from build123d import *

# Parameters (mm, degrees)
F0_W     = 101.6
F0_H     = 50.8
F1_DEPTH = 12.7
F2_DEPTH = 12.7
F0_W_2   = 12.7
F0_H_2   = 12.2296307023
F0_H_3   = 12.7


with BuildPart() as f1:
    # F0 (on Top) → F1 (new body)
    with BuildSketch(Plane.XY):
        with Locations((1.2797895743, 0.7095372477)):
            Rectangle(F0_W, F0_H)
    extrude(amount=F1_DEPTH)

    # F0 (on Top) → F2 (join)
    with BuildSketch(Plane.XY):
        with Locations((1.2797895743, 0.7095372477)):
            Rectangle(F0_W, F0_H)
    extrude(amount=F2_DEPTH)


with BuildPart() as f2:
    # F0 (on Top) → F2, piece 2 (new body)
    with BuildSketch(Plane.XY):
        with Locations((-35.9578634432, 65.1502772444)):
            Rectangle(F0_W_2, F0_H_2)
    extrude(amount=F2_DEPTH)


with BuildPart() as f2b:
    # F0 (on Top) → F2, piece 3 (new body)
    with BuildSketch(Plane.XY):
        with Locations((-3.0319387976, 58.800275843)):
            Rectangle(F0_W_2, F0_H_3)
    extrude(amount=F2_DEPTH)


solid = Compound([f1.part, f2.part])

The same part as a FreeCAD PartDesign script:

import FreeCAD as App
import Part
import Sketcher
from FreeCAD import Vector
Q = App.Units.Quantity

doc = App.newDocument("Part")
body = doc.addObject("PartDesign::Body", "Body")

sketch1 = body.newObject("Sketcher::SketchObject", "Sketch")
sketch1.AttachmentSupport = (doc.getObject("XY_Plane"), [""])
sketch1.MapMode = "FlatFace"
sketch1.addGeometry([
    Part.LineSegment(Vector(-50, 26, 0), Vector(-50, -25, 0)),
    Part.LineSegment(Vector(-50, -25, 0), Vector(52, -25, 0)),
    Part.LineSegment(Vector(52, -25, 0), Vector(52, 26, 0)),
    Part.LineSegment(Vector(52, 26, 0), Vector(-50, 26, 0)),
], False)
sketch1.addConstraint([
    Sketcher.Constraint("Coincident", 0, 2, 1, 1),
    Sketcher.Constraint("Coincident", 1, 2, 2, 1),
    Sketcher.Constraint("Coincident", 2, 2, 3, 1),
    Sketcher.Constraint("Coincident", 3, 2, 0, 1),
    Sketcher.Constraint("Vertical", 0),
    Sketcher.Constraint("Horizontal", 1),
    Sketcher.Constraint("Vertical", 2),
    Sketcher.Constraint("Horizontal", 3),
    Sketcher.Constraint("DistanceX", 1, 1, 1, 2, Q("4 in")),
    Sketcher.Constraint("DistanceY", 0, 2, 0, 1, Q("2 in")),
    Sketcher.Constraint("DistanceX", 0, 2, -1, 1, Q("49.52021 mm")),
    Sketcher.Constraint("DistanceY", 0, 2, -1, 1, Q("24.690463 mm")),
])
pad1 = body.newObject("PartDesign::Pad", "Pad")
pad1.Profile = sketch1
pad1.Length = Q("0.5 in")

sketch2 = body.newObject("Sketcher::SketchObject", "Sketch001")
sketch2.AttachmentSupport = (doc.getObject("XY_Plane"), [""])
sketch2.MapMode = "FlatFace"
sketch2.addGeometry([
    Part.LineSegment(Vector(-50, 26, 0), Vector(-50, -25, 0)),
    Part.LineSegment(Vector(-50, -25, 0), Vector(52, -25, 0)),
    Part.LineSegment(Vector(52, -25, 0), Vector(52, 26, 0)),
    Part.LineSegment(Vector(52, 26, 0), Vector(-50, 26, 0)),
], False)
sketch2.addConstraint([
    Sketcher.Constraint("Coincident", 0, 2, 1, 1),
    Sketcher.Constraint("Coincident", 1, 2, 2, 1),
    Sketcher.Constraint("Coincident", 2, 2, 3, 1),
    Sketcher.Constraint("Coincident", 3, 2, 0, 1),
    Sketcher.Constraint("Vertical", 0),
    Sketcher.Constraint("Horizontal", 1),
    Sketcher.Constraint("Vertical", 2),
    Sketcher.Constraint("Horizontal", 3),
    Sketcher.Constraint("DistanceX", 1, 1, 1, 2, Q("4 in")),
    Sketcher.Constraint("DistanceY", 0, 2, 0, 1, Q("2 in")),
    Sketcher.Constraint("DistanceX", 0, 2, -1, 1, Q("49.52021 mm")),
    Sketcher.Constraint("DistanceY", 0, 2, -1, 1, Q("24.690463 mm")),
])
pad2 = body.newObject("PartDesign::Pad", "Pad001")
pad2.Profile = sketch2
pad2.Length = Q("0.5 in")
body2 = doc.addObject("PartDesign::Body", "Body001")

sketch3 = body2.newObject("Sketcher::SketchObject", "Sketch002")
sketch3.AttachmentSupport = (doc.getObject("XY_Plane001"), [""])
sketch3.MapMode = "FlatFace"
sketch3.addGeometry([
    Part.LineSegment(Vector(-42, 71, 0), Vector(-42, 59, 0)),
    Part.LineSegment(Vector(-42, 59, 0), Vector(-30, 59, 0)),
    Part.LineSegment(Vector(-30, 59, 0), Vector(-30, 71, 0)),
    Part.LineSegment(Vector(-30, 71, 0), Vector(-42, 71, 0)),
], False)
sketch3.addConstraint([
    Sketcher.Constraint("Coincident", 0, 2, 1, 1),
    Sketcher.Constraint("Coincident", 1, 2, 2, 1),
    Sketcher.Constraint("Coincident", 2, 2, 3, 1),
    Sketcher.Constraint("Coincident", 3, 2, 0, 1),
    Sketcher.Constraint("Vertical", 0),
    Sketcher.Constraint("Horizontal", 1),
    Sketcher.Constraint("Vertical", 2),
    Sketcher.Constraint("Horizontal", 3),
    Sketcher.Constraint("DistanceX", 1, 1, 1, 2, Q("0.5 in")),
    Sketcher.Constraint("DistanceY", 0, 2, 0, 1, Q("12.229631 mm")),
    Sketcher.Constraint("DistanceY", -1, 1, 0, 2, Q("59.035462 mm")),
    Sketcher.Constraint("DistanceX", 0, 2, -1, 1, Q("42.307863 mm")),
])
pad3 = body2.newObject("PartDesign::Pad", "Pad002")
pad3.Profile = sketch3
pad3.Length = Q("0.5 in")
body3 = doc.addObject("PartDesign::Body", "Body002")

sketch4 = body3.newObject("Sketcher::SketchObject", "Sketch003")
sketch4.AttachmentSupport = (doc.getObject("XY_Plane002"), [""])
sketch4.MapMode = "FlatFace"
sketch4.addGeometry([
    Part.LineSegment(Vector(-9, 65, 0), Vector(-9, 52, 0)),
    Part.LineSegment(Vector(-9, 52, 0), Vector(3, 52, 0)),
    Part.LineSegment(Vector(3, 52, 0), Vector(3, 65, 0)),
    Part.LineSegment(Vector(3, 65, 0), Vector(-9, 65, 0)),
], False)
sketch4.addConstraint([
    Sketcher.Constraint("Coincident", 0, 2, 1, 1),
    Sketcher.Constraint("Coincident", 1, 2, 2, 1),
    Sketcher.Constraint("Coincident", 2, 2, 3, 1),
    Sketcher.Constraint("Coincident", 3, 2, 0, 1),
    Sketcher.Constraint("Vertical", 0),
    Sketcher.Constraint("Horizontal", 1),
    Sketcher.Constraint("Vertical", 2),
    Sketcher.Constraint("Horizontal", 3),
    Sketcher.Constraint("Equal", 3, 0),
    Sketcher.Constraint("DistanceX", 1, 1, 1, 2, Q("0.5 in")),
    Sketcher.Constraint("DistanceX", 0, 2, -1, 1, Q("9.381939 mm")),
    Sketcher.Constraint("DistanceY", -1, 1, 0, 2, Q("52.450276 mm")),
])
pad4 = body3.newObject("PartDesign::Pad", "Pad003")
pad4.Profile = sketch4
pad4.Length = Q("0.5 in")
body3.Visibility = False

doc.recompute()
